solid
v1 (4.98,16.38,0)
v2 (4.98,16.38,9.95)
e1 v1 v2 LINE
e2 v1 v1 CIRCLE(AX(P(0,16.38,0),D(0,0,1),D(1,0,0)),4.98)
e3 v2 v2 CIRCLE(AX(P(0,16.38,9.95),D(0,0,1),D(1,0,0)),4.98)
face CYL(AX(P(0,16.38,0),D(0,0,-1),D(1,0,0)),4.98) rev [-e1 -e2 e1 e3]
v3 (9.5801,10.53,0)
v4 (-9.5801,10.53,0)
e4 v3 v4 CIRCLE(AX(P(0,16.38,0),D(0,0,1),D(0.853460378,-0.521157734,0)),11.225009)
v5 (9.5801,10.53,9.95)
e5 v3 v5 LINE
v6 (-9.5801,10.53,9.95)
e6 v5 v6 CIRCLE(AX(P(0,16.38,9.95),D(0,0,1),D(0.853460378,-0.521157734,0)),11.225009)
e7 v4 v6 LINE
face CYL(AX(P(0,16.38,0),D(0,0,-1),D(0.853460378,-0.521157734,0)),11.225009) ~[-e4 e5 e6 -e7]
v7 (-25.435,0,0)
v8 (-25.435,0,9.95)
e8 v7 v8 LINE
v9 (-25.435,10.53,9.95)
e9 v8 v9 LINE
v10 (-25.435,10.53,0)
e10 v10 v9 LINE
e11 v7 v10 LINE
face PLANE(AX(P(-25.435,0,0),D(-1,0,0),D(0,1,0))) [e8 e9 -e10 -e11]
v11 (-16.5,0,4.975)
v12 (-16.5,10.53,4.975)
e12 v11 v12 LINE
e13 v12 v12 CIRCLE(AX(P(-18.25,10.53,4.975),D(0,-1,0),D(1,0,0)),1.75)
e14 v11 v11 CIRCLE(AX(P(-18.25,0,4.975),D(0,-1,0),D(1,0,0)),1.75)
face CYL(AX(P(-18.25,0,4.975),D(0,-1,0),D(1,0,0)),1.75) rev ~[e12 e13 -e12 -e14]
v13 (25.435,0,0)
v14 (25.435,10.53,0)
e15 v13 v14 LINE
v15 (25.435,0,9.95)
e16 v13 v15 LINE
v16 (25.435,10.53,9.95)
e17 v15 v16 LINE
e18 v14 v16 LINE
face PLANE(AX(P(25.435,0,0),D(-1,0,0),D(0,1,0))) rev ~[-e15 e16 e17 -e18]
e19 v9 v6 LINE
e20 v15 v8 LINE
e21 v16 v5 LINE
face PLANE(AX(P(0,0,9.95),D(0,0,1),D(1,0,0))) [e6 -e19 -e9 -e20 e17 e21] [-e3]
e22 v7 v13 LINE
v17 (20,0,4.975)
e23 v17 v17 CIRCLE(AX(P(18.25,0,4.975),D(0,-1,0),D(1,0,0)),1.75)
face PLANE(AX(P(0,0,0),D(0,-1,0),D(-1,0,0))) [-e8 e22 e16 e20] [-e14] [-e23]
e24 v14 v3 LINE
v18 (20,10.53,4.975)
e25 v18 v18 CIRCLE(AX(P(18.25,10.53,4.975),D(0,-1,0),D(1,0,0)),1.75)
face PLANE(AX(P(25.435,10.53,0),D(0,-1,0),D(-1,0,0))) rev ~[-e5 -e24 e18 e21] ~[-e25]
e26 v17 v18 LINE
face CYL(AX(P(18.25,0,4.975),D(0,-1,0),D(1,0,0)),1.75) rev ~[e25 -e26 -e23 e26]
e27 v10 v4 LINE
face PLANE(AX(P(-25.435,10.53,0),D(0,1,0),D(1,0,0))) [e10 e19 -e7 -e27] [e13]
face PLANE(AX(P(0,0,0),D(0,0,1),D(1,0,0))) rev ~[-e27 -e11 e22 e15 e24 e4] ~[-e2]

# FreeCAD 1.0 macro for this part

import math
import FreeCAD as App
import Part
import Sketcher
Q = App.Units.Quantity

doc = App.newDocument("Part")
body = doc.addObject("PartDesign::Body", "Body")

sketch1 = doc.addObject("Sketcher::SketchObject", "Sketch")
body.addObject(sketch1)
sketch1.AttachmentSupport = (doc.XY_Plane, [""])
sketch1.MapMode = "FlatFace"
sketch1.addGeometry([
    Part.LineSegment(App.Vector(-25.435, 0, 0), App.Vector(25.435, 0, 0)),
    Part.LineSegment(App.Vector(25.435, 0, 0), App.Vector(25.435, 10.53, 0)),
    Part.LineSegment(App.Vector(25.435, 10.53, 0), App.Vector(9.5801, 10.53, 0)),
    Part.ArcOfCircle(Part.Circle(App.Vector(0, 16.38, 0), App.Vector(0, 0, 1), 11.225009), math.radians(-31.409942), math.radians(211.409942)),
    Part.LineSegment(App.Vector(-9.5801, 10.53, 0), App.Vector(-25.435, 10.53, 0)),
    Part.LineSegment(App.Vector(-25.435, 10.53, 0), App.Vector(-25.435, 0, 0)),
    Part.Circle(App.Vector(0, 16.38, 0), App.Vector(0, 0, 1), 4.98),
], False)
sketch1.addConstraint([
    Sketcher.Constraint("Coincident", 0, 2, 1, 1),
    Sketcher.Constraint("Coincident", 1, 2, 2, 1),
    Sketcher.Constraint("Coincident", 2, 2, 3, 1),
    Sketcher.Constraint("Coincident", 3, 2, 4, 1),
    Sketcher.Constraint("Coincident", 4, 2, 5, 1),
    Sketcher.Constraint("Coincident", 5, 2, 0, 1),
    Sketcher.Constraint("Horizontal", 0),
    Sketcher.Constraint("Vertical", 1),
    Sketcher.Constraint("Horizontal", 2),
    Sketcher.Constraint("Horizontal", 4),
    Sketcher.Constraint("Vertical", 5),
    Sketcher.Constraint("Coincident", 6, 3, 3, 3),
    Sketcher.Constraint("Symmetric", 0, 2, 5, 2, -1, 1),
    Sketcher.Constraint("Symmetric", 2, 2, 3, 2, -2),
    Sketcher.Constraint("Diameter", 6, Q("9.96 mm")),
    Sketcher.Constraint("Radius", 3, Q("11.225 mm")),
    Sketcher.Constraint("DistanceY", 1, 1, 1, 2, Q("10.53 mm")),
    Sketcher.Constraint("DistanceX", -1, 1, 0, 2, Q("25.435 mm")),
    Sketcher.Constraint("DistanceX", 2, 2, 2, 1, Q("15.855 mm")),
])
pad1 = doc.addObject("PartDesign::Pad", "Pad")
body.addObject(pad1)
pad1.Profile = sketch1
pad1.Length = 9.95

sketch2 = doc.addObject("Sketcher::SketchObject", "Sketch001")
body.addObject(sketch2)
sketch2.AttachmentSupport = (doc.XZ_Plane, [""])
sketch2.MapMode = "FlatFace"
sketch2.addGeometry([
    Part.Circle(App.Vector(18.25, 4.975, 0), App.Vector(0, 0, 1), 1.75),
    Part.Circle(App.Vector(-18.25, 4.975, 0), App.Vector(0, 0, 1), 1.75),
], False)
sketch2.addConstraint([
    Sketcher.Constraint("Equal", 0, 1),
    Sketcher.Constraint("Symmetric", 0, 3, 1, 3, -2),
    Sketcher.Constraint("Diameter", 0, Q("3.5 mm")),
    Sketcher.Constraint("DistanceX", 1, 3, 0, 3, Q("36.5 mm")),
    Sketcher.Constraint("DistanceY", -1, 1, 0, 3, Q("4.975 mm")),
])
pocket1 = doc.addObject("PartDesign::Pocket", "Pocket")
body.addObject(pocket1)
pocket1.Profile = sketch2
pocket1.Length = 10.53

doc.recompute()
